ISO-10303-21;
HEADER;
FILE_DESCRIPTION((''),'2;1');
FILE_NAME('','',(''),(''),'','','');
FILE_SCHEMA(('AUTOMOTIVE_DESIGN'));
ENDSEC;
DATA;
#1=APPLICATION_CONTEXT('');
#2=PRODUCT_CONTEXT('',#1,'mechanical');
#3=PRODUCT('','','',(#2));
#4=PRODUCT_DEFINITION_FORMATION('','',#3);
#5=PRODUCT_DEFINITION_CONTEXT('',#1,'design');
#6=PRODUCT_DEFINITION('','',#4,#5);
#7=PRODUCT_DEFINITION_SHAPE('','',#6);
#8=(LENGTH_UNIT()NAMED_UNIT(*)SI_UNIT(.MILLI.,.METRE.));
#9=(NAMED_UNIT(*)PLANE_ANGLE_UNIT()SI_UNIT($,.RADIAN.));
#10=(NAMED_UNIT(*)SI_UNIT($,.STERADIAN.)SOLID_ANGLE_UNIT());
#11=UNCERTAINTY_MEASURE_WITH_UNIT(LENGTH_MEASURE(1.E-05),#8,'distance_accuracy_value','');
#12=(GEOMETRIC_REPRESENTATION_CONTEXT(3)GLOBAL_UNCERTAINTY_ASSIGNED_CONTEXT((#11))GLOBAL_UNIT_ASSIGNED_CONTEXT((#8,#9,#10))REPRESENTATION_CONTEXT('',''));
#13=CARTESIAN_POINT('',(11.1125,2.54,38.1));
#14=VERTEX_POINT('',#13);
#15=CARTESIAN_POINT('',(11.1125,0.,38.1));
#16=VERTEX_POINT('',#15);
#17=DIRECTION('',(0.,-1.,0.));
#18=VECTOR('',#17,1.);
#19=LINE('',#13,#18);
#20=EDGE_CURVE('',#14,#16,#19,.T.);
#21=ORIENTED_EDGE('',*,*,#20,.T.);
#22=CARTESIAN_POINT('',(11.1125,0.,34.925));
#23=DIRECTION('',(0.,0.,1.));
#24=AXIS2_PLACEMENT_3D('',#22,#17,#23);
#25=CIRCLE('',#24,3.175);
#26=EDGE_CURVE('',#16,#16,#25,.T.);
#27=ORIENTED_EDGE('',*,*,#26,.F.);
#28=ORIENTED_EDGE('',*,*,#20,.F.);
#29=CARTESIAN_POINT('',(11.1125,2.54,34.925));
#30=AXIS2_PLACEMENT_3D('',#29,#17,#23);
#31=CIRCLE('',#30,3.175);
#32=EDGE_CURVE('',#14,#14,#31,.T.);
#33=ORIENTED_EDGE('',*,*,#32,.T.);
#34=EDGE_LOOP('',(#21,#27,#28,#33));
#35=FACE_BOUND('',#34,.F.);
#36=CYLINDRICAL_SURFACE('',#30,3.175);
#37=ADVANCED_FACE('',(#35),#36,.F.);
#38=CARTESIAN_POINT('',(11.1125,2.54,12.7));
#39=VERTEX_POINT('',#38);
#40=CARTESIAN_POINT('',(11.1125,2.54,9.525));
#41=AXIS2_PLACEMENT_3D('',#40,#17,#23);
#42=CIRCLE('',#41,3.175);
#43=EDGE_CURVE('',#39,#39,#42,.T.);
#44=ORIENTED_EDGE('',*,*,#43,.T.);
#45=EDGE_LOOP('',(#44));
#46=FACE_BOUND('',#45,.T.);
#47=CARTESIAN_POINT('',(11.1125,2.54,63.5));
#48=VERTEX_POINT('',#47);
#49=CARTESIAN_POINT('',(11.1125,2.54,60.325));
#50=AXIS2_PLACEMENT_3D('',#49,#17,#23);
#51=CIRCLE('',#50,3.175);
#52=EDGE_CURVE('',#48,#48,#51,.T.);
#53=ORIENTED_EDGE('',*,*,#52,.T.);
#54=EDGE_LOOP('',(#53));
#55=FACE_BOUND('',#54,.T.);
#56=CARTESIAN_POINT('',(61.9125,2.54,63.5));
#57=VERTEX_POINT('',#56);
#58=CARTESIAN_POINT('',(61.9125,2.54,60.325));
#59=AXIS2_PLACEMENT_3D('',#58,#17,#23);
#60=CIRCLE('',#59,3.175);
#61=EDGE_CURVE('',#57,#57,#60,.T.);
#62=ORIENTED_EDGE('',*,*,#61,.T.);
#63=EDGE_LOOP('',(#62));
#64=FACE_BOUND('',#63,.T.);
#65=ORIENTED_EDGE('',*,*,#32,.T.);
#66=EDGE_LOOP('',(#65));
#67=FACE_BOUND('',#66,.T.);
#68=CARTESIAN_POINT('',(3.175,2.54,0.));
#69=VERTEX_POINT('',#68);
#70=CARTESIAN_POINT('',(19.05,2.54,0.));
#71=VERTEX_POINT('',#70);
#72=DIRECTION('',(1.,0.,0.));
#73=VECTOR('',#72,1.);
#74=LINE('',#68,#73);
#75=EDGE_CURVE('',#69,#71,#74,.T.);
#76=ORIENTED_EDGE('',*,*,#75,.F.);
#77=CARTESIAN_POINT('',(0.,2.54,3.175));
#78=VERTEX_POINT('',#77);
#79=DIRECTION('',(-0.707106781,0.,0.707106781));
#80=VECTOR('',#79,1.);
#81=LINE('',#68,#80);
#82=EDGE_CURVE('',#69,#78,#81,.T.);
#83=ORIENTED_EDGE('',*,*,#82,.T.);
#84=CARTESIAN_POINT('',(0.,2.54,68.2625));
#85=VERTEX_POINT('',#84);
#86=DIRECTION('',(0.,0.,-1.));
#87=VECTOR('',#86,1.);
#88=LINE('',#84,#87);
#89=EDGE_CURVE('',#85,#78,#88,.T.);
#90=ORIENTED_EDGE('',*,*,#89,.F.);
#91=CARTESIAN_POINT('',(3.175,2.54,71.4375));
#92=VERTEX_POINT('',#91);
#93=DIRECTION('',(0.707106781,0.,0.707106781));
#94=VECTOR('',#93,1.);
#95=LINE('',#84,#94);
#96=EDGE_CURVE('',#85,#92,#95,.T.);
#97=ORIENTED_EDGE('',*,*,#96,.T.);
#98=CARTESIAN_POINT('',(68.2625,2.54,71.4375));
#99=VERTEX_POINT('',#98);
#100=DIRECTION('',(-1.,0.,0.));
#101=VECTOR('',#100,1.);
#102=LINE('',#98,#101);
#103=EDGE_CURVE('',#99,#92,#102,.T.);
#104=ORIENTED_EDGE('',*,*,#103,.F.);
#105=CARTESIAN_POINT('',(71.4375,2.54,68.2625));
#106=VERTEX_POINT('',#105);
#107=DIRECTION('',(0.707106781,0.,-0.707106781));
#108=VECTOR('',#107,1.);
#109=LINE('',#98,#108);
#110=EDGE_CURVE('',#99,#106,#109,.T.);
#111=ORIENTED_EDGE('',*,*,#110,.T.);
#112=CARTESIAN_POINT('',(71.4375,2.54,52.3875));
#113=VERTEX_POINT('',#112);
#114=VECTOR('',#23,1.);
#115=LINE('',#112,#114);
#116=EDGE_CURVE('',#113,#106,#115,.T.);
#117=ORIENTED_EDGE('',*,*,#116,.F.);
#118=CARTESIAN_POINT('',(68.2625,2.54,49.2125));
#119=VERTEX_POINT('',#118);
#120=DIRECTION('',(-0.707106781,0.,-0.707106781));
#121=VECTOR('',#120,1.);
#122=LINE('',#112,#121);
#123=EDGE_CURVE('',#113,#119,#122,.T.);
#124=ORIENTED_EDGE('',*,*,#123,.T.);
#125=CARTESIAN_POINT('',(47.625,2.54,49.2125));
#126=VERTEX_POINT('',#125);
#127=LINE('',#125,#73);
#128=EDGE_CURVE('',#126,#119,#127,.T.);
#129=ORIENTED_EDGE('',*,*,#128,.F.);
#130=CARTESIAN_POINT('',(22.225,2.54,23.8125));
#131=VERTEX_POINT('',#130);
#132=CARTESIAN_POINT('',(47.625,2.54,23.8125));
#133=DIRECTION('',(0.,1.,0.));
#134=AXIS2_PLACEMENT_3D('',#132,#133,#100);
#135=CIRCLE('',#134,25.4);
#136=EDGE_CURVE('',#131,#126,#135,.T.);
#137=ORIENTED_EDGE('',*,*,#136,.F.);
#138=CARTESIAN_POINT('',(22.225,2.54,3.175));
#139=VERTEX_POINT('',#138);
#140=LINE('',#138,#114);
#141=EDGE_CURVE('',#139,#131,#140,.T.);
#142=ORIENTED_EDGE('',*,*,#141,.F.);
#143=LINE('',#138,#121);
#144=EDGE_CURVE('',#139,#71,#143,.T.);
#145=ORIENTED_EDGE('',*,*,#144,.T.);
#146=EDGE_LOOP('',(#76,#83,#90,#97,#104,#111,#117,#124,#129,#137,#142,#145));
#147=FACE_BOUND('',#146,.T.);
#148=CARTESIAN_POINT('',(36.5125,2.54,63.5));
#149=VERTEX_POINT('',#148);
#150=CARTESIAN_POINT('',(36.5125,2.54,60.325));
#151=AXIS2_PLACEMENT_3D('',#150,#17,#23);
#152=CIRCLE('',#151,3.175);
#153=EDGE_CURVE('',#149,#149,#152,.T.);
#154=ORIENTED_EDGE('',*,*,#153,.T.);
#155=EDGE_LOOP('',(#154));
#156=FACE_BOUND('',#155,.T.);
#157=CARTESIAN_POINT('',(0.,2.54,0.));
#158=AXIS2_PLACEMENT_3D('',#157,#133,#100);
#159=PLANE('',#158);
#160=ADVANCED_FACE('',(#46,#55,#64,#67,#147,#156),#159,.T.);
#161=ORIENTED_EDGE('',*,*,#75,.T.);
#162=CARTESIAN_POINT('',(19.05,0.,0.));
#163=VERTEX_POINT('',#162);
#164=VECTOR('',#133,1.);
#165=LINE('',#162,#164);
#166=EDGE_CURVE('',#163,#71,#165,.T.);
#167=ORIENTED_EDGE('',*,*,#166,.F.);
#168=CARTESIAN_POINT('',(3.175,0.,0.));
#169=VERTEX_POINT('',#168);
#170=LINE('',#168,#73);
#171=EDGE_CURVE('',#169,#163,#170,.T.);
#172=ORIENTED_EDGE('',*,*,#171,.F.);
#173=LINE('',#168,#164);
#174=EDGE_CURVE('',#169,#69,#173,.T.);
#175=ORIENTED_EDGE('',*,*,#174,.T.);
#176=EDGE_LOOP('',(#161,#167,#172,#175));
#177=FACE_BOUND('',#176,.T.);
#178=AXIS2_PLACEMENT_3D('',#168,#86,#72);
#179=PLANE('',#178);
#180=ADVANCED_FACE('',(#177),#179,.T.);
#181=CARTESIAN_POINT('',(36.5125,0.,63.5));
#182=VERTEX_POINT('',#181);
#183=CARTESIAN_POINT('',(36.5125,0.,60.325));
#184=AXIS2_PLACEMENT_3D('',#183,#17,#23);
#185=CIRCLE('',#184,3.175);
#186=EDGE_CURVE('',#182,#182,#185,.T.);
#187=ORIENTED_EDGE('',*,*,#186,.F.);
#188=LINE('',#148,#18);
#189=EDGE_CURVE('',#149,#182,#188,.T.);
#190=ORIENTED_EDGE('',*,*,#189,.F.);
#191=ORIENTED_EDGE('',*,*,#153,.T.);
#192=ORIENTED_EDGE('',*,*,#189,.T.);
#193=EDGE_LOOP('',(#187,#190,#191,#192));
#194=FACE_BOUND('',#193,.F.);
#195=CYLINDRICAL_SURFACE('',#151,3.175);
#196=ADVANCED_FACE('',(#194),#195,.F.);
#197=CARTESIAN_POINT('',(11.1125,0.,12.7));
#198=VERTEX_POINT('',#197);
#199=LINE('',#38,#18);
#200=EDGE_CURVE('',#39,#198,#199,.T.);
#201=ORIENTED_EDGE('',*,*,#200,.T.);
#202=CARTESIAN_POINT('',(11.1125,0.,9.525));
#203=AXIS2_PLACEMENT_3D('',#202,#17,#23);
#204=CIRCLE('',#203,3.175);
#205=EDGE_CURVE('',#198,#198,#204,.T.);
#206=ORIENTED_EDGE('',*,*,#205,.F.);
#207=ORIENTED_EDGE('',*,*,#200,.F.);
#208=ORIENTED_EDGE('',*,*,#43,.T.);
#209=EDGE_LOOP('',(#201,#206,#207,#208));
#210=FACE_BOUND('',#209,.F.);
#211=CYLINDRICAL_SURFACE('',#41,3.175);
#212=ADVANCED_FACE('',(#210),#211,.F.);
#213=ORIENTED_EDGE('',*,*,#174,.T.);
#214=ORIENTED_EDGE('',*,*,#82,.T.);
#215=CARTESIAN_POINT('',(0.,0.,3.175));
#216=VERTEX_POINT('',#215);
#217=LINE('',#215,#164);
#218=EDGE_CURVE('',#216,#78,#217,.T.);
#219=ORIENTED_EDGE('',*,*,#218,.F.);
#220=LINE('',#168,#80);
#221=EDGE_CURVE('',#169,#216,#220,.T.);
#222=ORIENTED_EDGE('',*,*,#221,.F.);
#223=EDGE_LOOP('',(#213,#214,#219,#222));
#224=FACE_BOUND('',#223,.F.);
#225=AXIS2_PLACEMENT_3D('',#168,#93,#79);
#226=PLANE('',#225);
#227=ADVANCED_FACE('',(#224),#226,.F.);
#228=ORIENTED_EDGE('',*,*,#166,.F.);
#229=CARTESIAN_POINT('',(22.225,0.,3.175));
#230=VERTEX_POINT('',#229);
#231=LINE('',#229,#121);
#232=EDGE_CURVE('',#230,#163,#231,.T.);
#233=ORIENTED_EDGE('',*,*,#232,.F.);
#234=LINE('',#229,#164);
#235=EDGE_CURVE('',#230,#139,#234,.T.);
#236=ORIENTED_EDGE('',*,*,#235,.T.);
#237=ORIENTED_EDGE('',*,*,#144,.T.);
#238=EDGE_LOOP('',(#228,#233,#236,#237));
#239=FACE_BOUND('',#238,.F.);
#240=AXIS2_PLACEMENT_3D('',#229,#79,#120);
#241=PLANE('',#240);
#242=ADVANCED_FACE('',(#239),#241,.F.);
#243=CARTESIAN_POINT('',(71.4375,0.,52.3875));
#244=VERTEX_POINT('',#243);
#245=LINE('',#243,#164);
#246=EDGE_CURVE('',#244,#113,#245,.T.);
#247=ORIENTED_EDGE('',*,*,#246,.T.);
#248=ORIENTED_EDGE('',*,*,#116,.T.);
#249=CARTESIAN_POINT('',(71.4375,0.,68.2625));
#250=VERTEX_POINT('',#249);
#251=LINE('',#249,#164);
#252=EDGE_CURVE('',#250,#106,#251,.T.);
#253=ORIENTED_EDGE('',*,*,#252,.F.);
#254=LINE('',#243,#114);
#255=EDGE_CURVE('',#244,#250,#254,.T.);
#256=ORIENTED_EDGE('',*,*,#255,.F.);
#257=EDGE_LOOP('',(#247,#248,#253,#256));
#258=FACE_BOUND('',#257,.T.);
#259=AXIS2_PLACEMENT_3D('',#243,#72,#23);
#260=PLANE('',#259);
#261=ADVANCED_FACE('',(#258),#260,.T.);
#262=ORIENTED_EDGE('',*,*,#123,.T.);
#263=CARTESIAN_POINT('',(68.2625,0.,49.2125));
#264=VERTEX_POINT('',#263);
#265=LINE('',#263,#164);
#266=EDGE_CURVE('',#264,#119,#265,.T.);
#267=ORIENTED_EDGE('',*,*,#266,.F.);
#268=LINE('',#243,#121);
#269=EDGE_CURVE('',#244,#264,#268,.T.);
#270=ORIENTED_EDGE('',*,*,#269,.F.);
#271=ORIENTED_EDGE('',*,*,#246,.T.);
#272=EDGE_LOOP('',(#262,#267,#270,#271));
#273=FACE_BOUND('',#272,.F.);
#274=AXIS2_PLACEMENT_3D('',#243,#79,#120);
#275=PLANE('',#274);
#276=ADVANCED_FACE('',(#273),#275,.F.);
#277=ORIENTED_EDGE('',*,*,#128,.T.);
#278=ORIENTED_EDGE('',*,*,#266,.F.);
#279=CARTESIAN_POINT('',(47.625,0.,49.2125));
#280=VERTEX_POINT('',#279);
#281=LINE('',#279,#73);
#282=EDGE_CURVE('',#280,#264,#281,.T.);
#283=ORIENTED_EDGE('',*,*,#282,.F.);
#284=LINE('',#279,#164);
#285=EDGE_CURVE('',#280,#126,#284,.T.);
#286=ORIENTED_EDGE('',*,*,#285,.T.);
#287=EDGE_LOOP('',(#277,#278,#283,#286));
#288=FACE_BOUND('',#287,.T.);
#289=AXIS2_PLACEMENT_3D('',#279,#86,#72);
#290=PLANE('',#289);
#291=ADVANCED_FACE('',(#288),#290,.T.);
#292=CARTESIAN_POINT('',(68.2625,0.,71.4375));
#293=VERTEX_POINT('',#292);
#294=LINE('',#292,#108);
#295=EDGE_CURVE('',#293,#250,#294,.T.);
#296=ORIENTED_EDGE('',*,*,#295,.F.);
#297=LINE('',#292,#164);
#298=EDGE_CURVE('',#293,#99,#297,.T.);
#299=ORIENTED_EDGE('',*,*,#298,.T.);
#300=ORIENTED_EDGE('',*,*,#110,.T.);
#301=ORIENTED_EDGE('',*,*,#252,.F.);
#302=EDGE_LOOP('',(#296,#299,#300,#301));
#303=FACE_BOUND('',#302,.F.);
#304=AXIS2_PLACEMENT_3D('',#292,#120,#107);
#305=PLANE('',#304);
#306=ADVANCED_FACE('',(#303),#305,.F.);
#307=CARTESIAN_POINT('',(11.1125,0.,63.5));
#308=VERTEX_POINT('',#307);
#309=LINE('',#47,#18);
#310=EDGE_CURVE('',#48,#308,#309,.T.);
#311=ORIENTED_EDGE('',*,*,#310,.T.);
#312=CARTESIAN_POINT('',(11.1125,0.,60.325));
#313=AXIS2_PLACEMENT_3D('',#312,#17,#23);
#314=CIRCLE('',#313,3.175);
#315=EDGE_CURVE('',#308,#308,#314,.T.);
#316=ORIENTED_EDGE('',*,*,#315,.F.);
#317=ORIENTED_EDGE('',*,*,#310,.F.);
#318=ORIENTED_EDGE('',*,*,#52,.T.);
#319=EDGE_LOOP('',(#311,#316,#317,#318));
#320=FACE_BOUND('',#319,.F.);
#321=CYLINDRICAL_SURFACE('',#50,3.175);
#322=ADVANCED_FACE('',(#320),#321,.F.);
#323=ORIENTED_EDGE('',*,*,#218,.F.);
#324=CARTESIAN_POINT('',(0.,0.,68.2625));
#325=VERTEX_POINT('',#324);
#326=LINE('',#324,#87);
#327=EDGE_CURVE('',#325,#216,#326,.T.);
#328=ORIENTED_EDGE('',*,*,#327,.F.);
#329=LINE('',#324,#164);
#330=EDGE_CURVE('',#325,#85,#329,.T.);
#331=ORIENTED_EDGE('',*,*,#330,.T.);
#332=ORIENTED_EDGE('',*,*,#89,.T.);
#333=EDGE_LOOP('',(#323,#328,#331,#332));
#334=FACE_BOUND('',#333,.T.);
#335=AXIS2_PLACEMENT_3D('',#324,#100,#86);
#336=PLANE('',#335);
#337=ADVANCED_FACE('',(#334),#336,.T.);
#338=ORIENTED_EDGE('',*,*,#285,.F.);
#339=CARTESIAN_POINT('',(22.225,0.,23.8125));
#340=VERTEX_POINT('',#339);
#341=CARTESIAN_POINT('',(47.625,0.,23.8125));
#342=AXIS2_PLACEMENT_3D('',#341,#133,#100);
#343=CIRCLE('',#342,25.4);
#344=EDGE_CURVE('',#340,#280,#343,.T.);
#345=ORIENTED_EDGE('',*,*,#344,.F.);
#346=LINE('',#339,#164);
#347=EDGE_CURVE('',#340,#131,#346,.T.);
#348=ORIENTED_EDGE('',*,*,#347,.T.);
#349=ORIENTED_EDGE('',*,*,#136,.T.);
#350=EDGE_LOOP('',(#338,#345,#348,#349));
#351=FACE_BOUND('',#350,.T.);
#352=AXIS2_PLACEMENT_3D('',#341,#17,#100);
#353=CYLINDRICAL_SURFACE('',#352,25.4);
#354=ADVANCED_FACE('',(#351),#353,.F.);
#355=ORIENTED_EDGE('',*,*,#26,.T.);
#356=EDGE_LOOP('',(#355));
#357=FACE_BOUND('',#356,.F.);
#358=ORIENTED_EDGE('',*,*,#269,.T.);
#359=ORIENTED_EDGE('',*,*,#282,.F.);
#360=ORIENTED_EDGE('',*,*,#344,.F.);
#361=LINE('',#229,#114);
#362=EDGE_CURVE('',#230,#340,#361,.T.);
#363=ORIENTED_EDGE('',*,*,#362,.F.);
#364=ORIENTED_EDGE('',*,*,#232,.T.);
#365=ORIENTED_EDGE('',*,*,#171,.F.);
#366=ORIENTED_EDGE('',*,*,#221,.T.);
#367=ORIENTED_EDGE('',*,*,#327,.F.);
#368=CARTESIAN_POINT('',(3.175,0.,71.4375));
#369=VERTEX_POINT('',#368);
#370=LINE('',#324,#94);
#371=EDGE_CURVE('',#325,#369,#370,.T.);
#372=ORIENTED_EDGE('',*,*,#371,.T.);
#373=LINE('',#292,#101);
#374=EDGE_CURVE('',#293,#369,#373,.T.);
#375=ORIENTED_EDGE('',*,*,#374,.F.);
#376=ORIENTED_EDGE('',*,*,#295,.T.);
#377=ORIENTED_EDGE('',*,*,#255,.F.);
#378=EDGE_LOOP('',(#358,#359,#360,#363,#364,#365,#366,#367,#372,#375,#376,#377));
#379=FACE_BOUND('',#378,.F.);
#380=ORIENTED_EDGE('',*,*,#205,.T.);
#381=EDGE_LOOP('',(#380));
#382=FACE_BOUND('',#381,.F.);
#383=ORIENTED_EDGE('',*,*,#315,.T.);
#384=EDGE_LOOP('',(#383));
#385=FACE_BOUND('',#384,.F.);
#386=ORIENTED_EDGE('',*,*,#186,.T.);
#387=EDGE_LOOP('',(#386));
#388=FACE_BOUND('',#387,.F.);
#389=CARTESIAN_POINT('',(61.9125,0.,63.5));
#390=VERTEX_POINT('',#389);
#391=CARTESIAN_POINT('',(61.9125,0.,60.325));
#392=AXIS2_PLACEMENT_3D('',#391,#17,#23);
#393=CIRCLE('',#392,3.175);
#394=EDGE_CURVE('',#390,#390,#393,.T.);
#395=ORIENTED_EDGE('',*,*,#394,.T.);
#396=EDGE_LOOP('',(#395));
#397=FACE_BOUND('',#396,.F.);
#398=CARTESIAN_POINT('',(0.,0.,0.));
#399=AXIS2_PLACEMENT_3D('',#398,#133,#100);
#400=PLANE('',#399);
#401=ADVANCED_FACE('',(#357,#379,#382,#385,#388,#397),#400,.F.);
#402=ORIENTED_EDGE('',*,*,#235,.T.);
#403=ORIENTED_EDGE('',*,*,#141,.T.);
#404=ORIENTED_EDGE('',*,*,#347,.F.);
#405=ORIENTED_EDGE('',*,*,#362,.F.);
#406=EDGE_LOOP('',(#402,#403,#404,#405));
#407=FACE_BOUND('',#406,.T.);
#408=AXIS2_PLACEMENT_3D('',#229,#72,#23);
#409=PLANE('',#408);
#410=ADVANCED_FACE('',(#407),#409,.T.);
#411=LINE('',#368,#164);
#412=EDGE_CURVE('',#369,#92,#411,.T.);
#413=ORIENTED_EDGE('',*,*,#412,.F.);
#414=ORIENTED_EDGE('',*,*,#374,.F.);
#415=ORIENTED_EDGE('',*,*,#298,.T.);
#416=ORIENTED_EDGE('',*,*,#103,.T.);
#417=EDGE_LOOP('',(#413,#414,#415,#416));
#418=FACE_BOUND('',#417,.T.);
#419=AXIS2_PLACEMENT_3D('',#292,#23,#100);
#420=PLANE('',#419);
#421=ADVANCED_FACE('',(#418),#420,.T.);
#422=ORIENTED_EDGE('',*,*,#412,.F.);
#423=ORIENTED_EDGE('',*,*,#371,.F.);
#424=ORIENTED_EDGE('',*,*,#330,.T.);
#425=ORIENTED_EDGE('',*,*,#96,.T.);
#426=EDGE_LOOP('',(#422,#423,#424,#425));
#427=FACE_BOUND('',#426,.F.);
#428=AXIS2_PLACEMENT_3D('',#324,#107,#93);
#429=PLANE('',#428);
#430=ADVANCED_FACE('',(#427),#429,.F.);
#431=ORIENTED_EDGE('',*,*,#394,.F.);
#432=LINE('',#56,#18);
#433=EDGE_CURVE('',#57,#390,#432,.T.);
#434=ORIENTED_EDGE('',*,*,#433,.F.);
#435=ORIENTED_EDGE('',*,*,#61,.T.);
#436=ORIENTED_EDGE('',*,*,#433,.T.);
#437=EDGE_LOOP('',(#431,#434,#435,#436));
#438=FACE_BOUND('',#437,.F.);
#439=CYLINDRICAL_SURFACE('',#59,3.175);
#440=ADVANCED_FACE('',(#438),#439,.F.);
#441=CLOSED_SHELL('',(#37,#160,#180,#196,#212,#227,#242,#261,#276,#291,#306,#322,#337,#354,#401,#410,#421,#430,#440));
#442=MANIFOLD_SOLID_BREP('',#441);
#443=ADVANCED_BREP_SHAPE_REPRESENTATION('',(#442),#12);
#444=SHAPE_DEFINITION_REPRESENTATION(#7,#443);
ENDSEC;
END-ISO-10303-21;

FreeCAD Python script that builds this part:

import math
import FreeCAD as App
import Part
import Sketcher
from FreeCAD import Vector
Q = App.Units.Quantity

doc = App.newDocument("Part")
body = doc.addObject("PartDesign::Body", "Body")

# Sketch on XZ plane
sketch1 = body.newObject("Sketcher::SketchObject", "Sketch")
sketch1.AttachmentSupport = (doc.getObject("XZ_Plane"), [""])
sketch1.MapMode = "FlatFace"
sketch1.addGeometry([
    Part.LineSegment(Vector(19.1, 0, 0), Vector(3.2, 0, 0)),  # 0
    Part.LineSegment(Vector(3.2, 0, 0), Vector(0, 3.2, 0)),  # 1
    Part.LineSegment(Vector(0, 3.2, 0), Vector(0, 68.3, 0)),  # 2
    Part.LineSegment(Vector(0, 68.3, 0), Vector(3.2, 71.4, 0)),  # 3
    Part.LineSegment(Vector(3.2, 71.4, 0), Vector(68.3, 71.4, 0)),  # 4
    Part.LineSegment(Vector(68.3, 71.4, 0), Vector(71.4, 68.3, 0)),  # 5
    Part.LineSegment(Vector(71.4, 68.3, 0), Vector(71.4, 52.4, 0)),  # 6
    Part.LineSegment(Vector(71.4, 52.4, 0), Vector(68.3, 49.2, 0)),  # 7
    Part.LineSegment(Vector(68.3, 49.2, 0), Vector(47.6, 49.2, 0)),  # 8
    Part.ArcOfCircle(Part.Circle(Vector(47.6, 23.8, 0), Vector(0, 0, 1), 25.4), math.radians(90), math.radians(180)),  # 9
    Part.LineSegment(Vector(22.2, 23.8, 0), Vector(22.2, 3.2, 0)),  # 10
    Part.LineSegment(Vector(22.2, 3.2, 0), Vector(19.1, 0, 0)),  # 11
], False)
sketch1.addConstraint([
    Sketcher.Constraint("Coincident", 0, 2, 1, 1),
    Sketcher.Constraint("Coincident", 1, 2, 2, 1),
    Sketcher.Constraint("Coincident", 2, 2, 3, 1),
    Sketcher.Constraint("Coincident", 3, 2, 4, 1),
    Sketcher.Constraint("Coincident", 4, 2, 5, 1),
    Sketcher.Constraint("Coincident", 5, 2, 6, 1),
    Sketcher.Constraint("Coincident", 6, 2, 7, 1),
    Sketcher.Constraint("Coincident", 7, 2, 8, 1),
    Sketcher.Constraint("Tangent", 8, 2, 9, 1),
    Sketcher.Constraint("Tangent", 9, 2, 10, 1),
    Sketcher.Constraint("Coincident", 10, 2, 11, 1),
    Sketcher.Constraint("Coincident", 11, 2, 0, 1),
    Sketcher.Constraint("Horizontal", 0),
    Sketcher.Constraint("Vertical", 2),
    Sketcher.Constraint("Horizontal", 4),
    Sketcher.Constraint("Vertical", 6),
    Sketcher.Constraint("Horizontal", 8),
    Sketcher.Constraint("Vertical", 10),
    Sketcher.Constraint("PointOnObject", 0, 2, -1),
    Sketcher.Constraint("PointOnObject", 1, 2, -2),
    Sketcher.Constraint("Perpendicular", 1, 3),
    Sketcher.Constraint("Perpendicular", 3, 5),
    Sketcher.Constraint("Perpendicular", 5, 7),
    Sketcher.Constraint("Parallel", 7, 11),
    Sketcher.Constraint("Horizontal", 2, 2, 5, 2),
    Sketcher.Constraint("Horizontal", 1, 2, 10, 2),
    Sketcher.Constraint("Vertical", 0, 2, 3, 2),
    Sketcher.Constraint("Vertical", 4, 2, 7, 2),
    Sketcher.Constraint("Equal", 4, 2),
    Sketcher.Constraint("Equal", 0, 6),
    Sketcher.Constraint("Equal", 8, 10),
    Sketcher.Constraint("Radius", 9, Q("1 in")),
    Sketcher.Constraint("DistanceX", 0, 2, 0, 1, Q("0.625 in")),
    Sketcher.Constraint("DistanceX", -1, 1, 9, 3, Q("1.875 in")),
    Sketcher.Constraint("DistanceY", -1, 1, 3, 2, Q("2.8125 in")),
])
pad1 = body.newObject("PartDesign::Pad", "Pad")
pad1.Profile = sketch1
pad1.Length = Q("0.1 in")
pad1.Reversed = True

# Sketch on XZ plane
sketch2 = body.newObject("Sketcher::SketchObject", "Sketch001")
sketch2.AttachmentSupport = (doc.getObject("XZ_Plane"), [""])
sketch2.MapMode = "FlatFace"
sketch2.AttachmentOffset = App.Placement(Vector(0, 0, -0.1 * 25.4), App.Rotation())
sketch2.addGeometry(Part.Circle(Vector(11.1, 60.3, 0), Vector(0, 0, 1), 3.2), False)
sketch2.addConstraint([
    Sketcher.Constraint("Diameter", 0, Q("0.25 in")),
    Sketcher.Constraint("DistanceX", -1, 1, 0, 3, Q("0.4375 in")),
    Sketcher.Constraint("DistanceY", -1, 1, 0, 3, Q("2.375 in")),
])
doc.recompute()
hole = body.newObject("PartDesign::Hole", "Hole")
hole.Profile = sketch2
hole.ThreadType = "None"
hole.Diameter = Q("0.25 in")
hole.DepthType = "ThroughAll"
hole.Reversed = True
doc.recompute()

linearpattern = body.newObject("PartDesign::LinearPattern", "LinearPattern")
linearpattern.Originals = [hole]
linearpattern.Direction = (doc.getObject("Z_Axis"), [""])
linearpattern.Mode = "offset"
linearpattern.Offset = Q("1 in")
linearpattern.Occurrences = 3
linearpattern.Reversed = True
body.Tip = linearpattern
doc.recompute()

linearpattern2 = body.newObject("PartDesign::LinearPattern", "LinearPattern001")
linearpattern2.Originals = [hole]
linearpattern2.Direction = (doc.getObject("X_Axis"), [""])
linearpattern2.Mode = "offset"
linearpattern2.Offset = Q("1 in")
linearpattern2.Occurrences = 3
body.Tip = linearpattern2

doc.recompute()
